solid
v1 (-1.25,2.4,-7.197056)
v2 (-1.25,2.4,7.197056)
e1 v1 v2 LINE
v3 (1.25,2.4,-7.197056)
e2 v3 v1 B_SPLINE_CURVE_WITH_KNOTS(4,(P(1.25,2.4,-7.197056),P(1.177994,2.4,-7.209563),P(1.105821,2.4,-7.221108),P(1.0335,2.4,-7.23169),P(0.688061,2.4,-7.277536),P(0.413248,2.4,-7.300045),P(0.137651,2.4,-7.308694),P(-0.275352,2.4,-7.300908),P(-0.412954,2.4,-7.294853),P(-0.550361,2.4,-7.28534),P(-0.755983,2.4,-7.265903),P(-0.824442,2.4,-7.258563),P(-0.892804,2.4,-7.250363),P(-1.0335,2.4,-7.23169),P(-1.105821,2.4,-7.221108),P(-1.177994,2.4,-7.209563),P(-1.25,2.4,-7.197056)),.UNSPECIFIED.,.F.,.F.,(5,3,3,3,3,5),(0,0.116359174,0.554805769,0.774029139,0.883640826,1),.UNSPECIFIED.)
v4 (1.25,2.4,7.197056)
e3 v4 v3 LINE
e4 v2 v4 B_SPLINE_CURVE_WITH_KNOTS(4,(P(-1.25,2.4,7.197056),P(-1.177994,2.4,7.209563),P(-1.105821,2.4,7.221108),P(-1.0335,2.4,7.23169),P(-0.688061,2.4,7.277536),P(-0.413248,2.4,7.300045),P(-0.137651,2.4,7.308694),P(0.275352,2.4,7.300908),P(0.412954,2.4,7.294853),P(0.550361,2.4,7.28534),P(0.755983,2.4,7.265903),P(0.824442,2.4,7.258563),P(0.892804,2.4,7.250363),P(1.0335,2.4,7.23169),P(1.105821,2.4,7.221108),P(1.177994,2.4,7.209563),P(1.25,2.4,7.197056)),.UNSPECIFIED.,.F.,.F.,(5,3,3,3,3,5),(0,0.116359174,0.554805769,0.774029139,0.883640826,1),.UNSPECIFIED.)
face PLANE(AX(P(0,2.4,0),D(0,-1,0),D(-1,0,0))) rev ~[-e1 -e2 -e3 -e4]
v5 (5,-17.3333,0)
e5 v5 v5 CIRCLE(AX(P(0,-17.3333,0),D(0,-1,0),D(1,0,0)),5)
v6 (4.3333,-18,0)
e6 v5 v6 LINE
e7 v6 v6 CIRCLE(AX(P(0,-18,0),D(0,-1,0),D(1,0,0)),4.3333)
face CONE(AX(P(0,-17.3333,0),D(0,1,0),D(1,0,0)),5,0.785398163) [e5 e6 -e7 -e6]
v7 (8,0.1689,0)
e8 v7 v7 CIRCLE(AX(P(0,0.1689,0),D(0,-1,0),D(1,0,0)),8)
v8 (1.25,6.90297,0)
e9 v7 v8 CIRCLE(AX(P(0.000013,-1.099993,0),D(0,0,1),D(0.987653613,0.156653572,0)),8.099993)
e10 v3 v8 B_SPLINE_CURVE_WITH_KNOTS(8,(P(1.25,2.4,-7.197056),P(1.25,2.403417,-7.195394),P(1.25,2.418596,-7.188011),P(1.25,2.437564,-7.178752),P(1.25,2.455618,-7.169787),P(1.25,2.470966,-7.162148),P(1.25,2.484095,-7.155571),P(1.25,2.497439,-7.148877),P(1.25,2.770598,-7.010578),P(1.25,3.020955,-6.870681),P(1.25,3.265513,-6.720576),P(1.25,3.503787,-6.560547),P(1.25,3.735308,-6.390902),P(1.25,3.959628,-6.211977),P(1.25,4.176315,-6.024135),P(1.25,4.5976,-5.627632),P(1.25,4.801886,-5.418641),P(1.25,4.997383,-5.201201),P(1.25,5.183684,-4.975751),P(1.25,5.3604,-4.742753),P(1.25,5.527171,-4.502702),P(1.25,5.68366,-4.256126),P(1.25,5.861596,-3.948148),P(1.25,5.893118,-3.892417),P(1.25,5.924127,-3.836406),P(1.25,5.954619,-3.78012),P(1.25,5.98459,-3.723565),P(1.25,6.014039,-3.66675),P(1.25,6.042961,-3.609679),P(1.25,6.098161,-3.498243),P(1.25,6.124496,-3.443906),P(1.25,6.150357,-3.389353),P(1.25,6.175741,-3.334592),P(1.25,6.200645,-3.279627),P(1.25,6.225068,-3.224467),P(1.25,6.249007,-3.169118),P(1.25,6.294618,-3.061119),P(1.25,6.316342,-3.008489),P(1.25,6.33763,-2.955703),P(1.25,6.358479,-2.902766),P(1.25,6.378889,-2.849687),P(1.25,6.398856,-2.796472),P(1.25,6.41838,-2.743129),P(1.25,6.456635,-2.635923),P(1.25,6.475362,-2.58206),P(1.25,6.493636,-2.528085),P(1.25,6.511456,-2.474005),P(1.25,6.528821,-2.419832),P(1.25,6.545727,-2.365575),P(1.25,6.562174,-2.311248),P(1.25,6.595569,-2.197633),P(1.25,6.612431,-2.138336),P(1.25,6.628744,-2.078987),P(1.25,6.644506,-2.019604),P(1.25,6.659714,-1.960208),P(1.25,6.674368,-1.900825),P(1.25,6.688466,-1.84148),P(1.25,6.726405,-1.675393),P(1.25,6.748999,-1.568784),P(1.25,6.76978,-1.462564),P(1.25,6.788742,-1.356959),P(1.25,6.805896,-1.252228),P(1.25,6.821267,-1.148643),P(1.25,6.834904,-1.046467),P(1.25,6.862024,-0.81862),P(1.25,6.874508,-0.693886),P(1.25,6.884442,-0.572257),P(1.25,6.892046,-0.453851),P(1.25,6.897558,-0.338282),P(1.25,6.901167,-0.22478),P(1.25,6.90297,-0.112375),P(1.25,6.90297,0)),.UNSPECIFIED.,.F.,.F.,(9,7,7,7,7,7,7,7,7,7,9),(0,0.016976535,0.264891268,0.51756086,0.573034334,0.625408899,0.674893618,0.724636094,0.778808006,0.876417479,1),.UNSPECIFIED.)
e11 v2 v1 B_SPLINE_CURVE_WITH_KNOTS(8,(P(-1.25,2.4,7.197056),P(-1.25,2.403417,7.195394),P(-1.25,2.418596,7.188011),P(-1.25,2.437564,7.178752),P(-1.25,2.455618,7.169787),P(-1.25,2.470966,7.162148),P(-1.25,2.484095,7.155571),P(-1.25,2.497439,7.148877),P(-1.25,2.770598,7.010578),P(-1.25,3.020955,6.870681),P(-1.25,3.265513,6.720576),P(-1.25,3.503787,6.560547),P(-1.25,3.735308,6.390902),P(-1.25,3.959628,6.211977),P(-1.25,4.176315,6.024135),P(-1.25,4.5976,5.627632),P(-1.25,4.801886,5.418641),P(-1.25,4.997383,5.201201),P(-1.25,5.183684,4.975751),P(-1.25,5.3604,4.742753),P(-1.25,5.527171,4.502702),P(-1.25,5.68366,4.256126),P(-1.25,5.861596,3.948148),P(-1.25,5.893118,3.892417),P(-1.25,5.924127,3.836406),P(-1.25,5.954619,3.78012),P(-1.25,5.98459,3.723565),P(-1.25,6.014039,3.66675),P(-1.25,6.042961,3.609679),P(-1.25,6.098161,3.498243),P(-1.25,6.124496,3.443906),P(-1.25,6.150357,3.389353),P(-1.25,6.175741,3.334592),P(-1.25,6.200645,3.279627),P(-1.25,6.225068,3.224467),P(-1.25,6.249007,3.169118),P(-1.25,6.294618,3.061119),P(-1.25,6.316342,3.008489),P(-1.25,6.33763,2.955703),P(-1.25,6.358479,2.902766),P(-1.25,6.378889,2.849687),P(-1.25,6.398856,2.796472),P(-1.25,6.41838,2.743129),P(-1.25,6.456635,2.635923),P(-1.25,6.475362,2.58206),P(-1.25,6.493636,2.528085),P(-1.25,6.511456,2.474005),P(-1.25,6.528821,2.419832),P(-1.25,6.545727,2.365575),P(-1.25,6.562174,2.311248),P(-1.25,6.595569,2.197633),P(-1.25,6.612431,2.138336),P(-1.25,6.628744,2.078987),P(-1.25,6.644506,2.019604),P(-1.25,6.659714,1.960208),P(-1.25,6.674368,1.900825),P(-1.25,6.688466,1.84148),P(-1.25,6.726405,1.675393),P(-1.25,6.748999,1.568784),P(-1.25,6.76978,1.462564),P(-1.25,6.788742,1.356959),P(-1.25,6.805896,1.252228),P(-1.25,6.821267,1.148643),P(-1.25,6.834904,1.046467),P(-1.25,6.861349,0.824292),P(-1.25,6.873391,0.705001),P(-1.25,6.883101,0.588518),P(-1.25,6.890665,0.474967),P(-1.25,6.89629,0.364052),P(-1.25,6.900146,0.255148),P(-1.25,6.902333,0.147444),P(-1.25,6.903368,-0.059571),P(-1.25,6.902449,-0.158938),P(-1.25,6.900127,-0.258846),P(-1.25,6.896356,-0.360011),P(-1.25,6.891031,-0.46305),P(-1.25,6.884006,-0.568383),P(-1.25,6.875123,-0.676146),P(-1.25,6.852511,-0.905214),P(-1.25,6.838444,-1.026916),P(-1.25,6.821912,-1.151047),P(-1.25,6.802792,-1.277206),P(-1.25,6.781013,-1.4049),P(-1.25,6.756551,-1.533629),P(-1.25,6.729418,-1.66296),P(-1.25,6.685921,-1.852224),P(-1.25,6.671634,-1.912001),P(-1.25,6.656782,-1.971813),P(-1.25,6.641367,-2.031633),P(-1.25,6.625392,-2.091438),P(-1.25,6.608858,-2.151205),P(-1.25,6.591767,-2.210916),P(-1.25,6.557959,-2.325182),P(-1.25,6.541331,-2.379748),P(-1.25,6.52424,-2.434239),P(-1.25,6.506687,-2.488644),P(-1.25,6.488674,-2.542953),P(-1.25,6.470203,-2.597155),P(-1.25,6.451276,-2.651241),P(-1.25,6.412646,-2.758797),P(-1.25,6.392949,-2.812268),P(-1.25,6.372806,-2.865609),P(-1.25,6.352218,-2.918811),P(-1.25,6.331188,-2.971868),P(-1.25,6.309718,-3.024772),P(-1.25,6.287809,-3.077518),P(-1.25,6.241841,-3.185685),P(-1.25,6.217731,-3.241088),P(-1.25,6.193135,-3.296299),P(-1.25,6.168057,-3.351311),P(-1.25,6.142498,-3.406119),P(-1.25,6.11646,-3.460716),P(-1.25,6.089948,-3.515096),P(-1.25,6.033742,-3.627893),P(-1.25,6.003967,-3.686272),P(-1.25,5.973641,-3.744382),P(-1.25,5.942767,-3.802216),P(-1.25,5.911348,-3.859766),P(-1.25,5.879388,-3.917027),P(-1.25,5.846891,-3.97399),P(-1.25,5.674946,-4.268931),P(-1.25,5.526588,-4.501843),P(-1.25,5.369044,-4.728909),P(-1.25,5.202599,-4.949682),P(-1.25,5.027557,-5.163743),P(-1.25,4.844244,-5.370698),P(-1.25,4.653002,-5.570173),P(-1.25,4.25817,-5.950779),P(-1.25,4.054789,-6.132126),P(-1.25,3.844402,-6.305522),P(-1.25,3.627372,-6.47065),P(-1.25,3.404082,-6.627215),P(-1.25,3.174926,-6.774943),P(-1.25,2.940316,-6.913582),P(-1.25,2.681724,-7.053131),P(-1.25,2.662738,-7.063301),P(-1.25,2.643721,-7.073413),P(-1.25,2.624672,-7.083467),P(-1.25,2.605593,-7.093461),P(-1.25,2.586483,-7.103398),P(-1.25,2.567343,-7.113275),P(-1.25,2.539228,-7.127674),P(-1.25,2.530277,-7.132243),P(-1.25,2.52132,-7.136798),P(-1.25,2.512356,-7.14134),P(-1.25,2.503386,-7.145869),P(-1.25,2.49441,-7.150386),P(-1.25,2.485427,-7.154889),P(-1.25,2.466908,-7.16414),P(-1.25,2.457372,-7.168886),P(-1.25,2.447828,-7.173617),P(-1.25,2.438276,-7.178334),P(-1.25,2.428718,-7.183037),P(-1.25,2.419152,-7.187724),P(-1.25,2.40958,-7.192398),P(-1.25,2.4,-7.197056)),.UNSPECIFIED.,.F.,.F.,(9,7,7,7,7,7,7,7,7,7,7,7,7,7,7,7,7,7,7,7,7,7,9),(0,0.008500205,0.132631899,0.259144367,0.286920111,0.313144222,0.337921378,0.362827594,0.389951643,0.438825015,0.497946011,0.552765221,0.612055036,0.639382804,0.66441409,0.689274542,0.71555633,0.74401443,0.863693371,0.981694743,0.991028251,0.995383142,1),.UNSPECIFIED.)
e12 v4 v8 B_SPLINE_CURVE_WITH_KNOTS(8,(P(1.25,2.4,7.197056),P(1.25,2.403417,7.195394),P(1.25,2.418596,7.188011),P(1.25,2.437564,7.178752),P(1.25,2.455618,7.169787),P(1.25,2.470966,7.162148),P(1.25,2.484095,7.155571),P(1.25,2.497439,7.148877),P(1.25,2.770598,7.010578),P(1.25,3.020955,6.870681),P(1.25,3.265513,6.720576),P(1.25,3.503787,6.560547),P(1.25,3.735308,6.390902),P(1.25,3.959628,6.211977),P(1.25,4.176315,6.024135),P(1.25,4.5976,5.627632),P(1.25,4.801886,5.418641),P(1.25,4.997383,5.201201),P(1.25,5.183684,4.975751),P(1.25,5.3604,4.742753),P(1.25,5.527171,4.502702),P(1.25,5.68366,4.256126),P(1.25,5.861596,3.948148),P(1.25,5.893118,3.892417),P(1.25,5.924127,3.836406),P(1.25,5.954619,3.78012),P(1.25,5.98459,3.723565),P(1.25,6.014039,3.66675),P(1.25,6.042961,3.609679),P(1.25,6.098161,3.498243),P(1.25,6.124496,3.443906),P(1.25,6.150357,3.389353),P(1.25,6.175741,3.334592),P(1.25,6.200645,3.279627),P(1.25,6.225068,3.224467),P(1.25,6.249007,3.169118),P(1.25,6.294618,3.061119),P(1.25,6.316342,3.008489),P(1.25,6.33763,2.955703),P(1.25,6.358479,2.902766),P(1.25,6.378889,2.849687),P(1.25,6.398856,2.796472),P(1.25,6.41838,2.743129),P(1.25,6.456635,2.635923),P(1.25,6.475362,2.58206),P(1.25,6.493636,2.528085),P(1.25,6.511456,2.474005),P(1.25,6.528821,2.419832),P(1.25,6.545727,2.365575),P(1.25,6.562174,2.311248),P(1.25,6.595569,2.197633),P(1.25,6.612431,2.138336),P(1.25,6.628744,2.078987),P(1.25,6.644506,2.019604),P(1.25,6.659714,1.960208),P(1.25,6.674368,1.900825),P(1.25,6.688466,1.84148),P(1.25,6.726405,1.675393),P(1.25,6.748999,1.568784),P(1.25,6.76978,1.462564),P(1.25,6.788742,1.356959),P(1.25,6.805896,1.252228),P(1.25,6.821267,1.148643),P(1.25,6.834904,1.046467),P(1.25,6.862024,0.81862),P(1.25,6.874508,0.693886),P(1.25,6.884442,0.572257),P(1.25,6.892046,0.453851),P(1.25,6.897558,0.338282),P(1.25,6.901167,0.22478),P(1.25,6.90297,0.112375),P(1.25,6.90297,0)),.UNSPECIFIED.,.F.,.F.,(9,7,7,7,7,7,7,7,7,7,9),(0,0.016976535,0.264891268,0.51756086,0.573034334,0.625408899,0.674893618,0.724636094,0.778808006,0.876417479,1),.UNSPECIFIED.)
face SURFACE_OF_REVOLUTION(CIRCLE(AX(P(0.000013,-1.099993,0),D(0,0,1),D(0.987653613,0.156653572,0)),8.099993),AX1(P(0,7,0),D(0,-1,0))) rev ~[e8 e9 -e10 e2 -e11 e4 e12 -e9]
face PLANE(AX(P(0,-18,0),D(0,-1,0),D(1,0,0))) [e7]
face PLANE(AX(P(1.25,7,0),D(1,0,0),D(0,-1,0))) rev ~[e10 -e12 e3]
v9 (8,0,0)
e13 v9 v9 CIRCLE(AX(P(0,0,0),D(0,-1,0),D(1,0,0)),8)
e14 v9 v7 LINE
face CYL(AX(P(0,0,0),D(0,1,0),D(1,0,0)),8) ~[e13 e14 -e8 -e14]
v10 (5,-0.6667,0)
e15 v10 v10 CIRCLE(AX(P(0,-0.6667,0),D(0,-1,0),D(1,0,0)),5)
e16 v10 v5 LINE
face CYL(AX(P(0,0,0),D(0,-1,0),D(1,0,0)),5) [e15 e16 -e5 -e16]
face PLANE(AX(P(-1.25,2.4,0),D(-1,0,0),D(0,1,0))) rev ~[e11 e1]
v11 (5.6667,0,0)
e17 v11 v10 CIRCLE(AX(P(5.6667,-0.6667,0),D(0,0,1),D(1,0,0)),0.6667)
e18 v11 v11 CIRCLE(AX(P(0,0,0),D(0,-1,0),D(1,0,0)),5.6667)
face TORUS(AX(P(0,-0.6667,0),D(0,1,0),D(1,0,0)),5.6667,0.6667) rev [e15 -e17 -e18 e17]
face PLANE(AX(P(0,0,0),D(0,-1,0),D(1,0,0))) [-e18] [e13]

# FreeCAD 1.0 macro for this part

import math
import FreeCAD as App
import Part
import Sketcher
from FreeCAD import Vector
Q = App.Units.Quantity


def edges_at(feature, points):
    """Names of the edges that pass closest to the given points."""
    edges = feature.Shape.Edges
    near = lambda p: min(range(len(edges)), key=lambda i: edges[i].distToShape(Part.Vertex(*p))[0])
    return sorted({f"Edge{near(p) + 1}" for p in points})

doc = App.newDocument("Part")
params = doc.addObject("Spreadsheet::Sheet", "Params")
for row, (alias, value) in enumerate([
    ("sketch1_radius", "8.1 mm"),
    ("sketch1_height", "18 mm"),
    ("sketch1_width", "5 mm"),
    ("sketch1_width2", "3 mm"),
    ("revolution_angle", "360 deg"),
    ("sketch2_width", "2.5 mm"),
    ("sketch2_height", "4.6 mm"),
    ("fillet_radius", "0.6667 mm"),
    ("chamfer_size", "0.6667 mm"),
], start=1):
    params.set(f"A{row}", alias)
    params.set(f"B{row}", "=" + value)
    params.setAlias(f"B{row}", alias)

body = doc.addObject("PartDesign::Body", "Body")

# Sketch on XY plane
sketch1 = doc.addObject("Sketcher::SketchObject", "Sketch")
body.addObject(sketch1)
sketch1.AttachmentSupport = (doc.XY_Plane, [""])
sketch1.MapMode = "FlatFace"
sketch1.addGeometry([
    Part.ArcOfCircle(Part.Circle(Vector(0, -1.1, 0), Vector(0, 0, 1), 8.1), math.radians(9), math.radians(90)),  # 0
    Part.LineSegment(Vector(0, 7, 0), Vector(0, -18, 0)),  # 1
    Part.LineSegment(Vector(0, -18, 0), Vector(5, -18, 0)),  # 2
    Part.LineSegment(Vector(5, -18, 0), Vector(5, 0, 0)),  # 3
    Part.LineSegment(Vector(5, 0, 0), Vector(8, 0, 0)),  # 4
    Part.LineSegment(Vector(8, 0, 0), Vector(8, 0.17, 0)),  # 5
], False)
sketch1.addConstraint([
    Sketcher.Constraint("Coincident", 0, 2, 1, 1),
    Sketcher.Constraint("Coincident", 1, 2, 2, 1),
    Sketcher.Constraint("Coincident", 2, 2, 3, 1),
    Sketcher.Constraint("Coincident", 3, 2, 4, 1),
    Sketcher.Constraint("Coincident", 4, 2, 5, 1),
    Sketcher.Constraint("Coincident", 5, 2, 0, 1),
    Sketcher.Constraint("Vertical", 1),
    Sketcher.Constraint("Horizontal", 2),
    Sketcher.Constraint("Vertical", 3),
    Sketcher.Constraint("Horizontal", 4),
    Sketcher.Constraint("Vertical", 5),
    Sketcher.Constraint("PointOnObject", 0, 3, -2),
    Sketcher.Constraint("PointOnObject", 0, 2, -2),
    Sketcher.Constraint("PointOnObject", 3, 2, -1),
    Sketcher.Constraint("Radius", 0, Q("8.1 mm")),
    Sketcher.Constraint("DistanceY", 3, 1, 3, 2, Q("18 mm")),
    Sketcher.Constraint("DistanceY", -1, 1, 0, 2, Q("7 mm")),
    Sketcher.Constraint("DistanceX", 2, 1, 2, 2, Q("5 mm")),
    Sketcher.Constraint("DistanceX", 4, 1, 4, 2, Q("3 mm")),
])
sketch1.setExpression("Constraints[14]", "Params.sketch1_radius")
sketch1.setExpression("Constraints[15]", "Params.sketch1_height")
sketch1.setExpression("Constraints[17]", "Params.sketch1_width")
sketch1.setExpression("Constraints[18]", "Params.sketch1_width2")
revolution = doc.addObject("PartDesign::Revolution", "Revolution")
body.addObject(revolution)
revolution.Profile = sketch1
revolution.ReferenceAxis = (sketch1, ["V_Axis"])
revolution.setExpression("Angle", "Params.revolution_angle")

# Sketch on XY plane
sketch2 = doc.addObject("Sketcher::SketchObject", "Sketch001")
body.addObject(sketch2)
sketch2.AttachmentSupport = (doc.XY_Plane, [""])
sketch2.MapMode = "FlatFace"
sketch2.addGeometry([
    Part.LineSegment(Vector(-1.2, 7, 0), Vector(-1.2, 2.4, 0)),
    Part.LineSegment(Vector(-1.2, 2.4, 0), Vector(1.2, 2.4, 0)),
    Part.LineSegment(Vector(1.2, 2.4, 0), Vector(1.2, 7, 0)),
    Part.LineSegment(Vector(1.2, 7, 0), Vector(-1.2, 7, 0)),
], False)
sketch2.addConstraint([
    Sketcher.Constraint("Coincident", 0, 2, 1, 1),
    Sketcher.Constraint("Coincident", 1, 2, 2, 1),
    Sketcher.Constraint("Coincident", 2, 2, 3, 1),
    Sketcher.Constraint("Coincident", 3, 2, 0, 1),
    Sketcher.Constraint("Vertical", 0),
    Sketcher.Constraint("Horizontal", 1),
    Sketcher.Constraint("Vertical", 2),
    Sketcher.Constraint("Horizontal", 3),
    Sketcher.Constraint("DistanceX", 1, 1, 1, 2, Q("2.5 mm")),
    Sketcher.Constraint("DistanceY", -1, 1, 0, 2, Q("2.4 mm")),
    Sketcher.Constraint("DistanceY", 0, 2, 0, 1, Q("4.6 mm")),
    Sketcher.Constraint("DistanceX", 0, 2, -1, 1, Q("1.25 mm")),
])
sketch2.setExpression("Constraints[8]", "Params.sketch2_width")
sketch2.setExpression("Constraints[10]", "Params.sketch2_height")
pocket1 = doc.addObject("PartDesign::Pocket", "Pocket")
body.addObject(pocket1)
pocket1.Profile = sketch2
pocket1.Type = "ThroughAll"
pocket1.Midplane = True
doc.recompute()

fillet = doc.addObject("PartDesign::Fillet", "Fillet")
body.addObject(fillet)
fillet.Base = (pocket1, edges_at(pocket1, [(-5, 0, 0)]))
fillet.setExpression("Radius", "Params.fillet_radius")
doc.recompute()

chamfer = doc.addObject("PartDesign::Chamfer", "Chamfer")
body.addObject(chamfer)
chamfer.Base = (fillet, edges_at(fillet, [(-5, -18, 0)]))
chamfer.setExpression("Size", "Params.chamfer_size")

doc.recompute()
